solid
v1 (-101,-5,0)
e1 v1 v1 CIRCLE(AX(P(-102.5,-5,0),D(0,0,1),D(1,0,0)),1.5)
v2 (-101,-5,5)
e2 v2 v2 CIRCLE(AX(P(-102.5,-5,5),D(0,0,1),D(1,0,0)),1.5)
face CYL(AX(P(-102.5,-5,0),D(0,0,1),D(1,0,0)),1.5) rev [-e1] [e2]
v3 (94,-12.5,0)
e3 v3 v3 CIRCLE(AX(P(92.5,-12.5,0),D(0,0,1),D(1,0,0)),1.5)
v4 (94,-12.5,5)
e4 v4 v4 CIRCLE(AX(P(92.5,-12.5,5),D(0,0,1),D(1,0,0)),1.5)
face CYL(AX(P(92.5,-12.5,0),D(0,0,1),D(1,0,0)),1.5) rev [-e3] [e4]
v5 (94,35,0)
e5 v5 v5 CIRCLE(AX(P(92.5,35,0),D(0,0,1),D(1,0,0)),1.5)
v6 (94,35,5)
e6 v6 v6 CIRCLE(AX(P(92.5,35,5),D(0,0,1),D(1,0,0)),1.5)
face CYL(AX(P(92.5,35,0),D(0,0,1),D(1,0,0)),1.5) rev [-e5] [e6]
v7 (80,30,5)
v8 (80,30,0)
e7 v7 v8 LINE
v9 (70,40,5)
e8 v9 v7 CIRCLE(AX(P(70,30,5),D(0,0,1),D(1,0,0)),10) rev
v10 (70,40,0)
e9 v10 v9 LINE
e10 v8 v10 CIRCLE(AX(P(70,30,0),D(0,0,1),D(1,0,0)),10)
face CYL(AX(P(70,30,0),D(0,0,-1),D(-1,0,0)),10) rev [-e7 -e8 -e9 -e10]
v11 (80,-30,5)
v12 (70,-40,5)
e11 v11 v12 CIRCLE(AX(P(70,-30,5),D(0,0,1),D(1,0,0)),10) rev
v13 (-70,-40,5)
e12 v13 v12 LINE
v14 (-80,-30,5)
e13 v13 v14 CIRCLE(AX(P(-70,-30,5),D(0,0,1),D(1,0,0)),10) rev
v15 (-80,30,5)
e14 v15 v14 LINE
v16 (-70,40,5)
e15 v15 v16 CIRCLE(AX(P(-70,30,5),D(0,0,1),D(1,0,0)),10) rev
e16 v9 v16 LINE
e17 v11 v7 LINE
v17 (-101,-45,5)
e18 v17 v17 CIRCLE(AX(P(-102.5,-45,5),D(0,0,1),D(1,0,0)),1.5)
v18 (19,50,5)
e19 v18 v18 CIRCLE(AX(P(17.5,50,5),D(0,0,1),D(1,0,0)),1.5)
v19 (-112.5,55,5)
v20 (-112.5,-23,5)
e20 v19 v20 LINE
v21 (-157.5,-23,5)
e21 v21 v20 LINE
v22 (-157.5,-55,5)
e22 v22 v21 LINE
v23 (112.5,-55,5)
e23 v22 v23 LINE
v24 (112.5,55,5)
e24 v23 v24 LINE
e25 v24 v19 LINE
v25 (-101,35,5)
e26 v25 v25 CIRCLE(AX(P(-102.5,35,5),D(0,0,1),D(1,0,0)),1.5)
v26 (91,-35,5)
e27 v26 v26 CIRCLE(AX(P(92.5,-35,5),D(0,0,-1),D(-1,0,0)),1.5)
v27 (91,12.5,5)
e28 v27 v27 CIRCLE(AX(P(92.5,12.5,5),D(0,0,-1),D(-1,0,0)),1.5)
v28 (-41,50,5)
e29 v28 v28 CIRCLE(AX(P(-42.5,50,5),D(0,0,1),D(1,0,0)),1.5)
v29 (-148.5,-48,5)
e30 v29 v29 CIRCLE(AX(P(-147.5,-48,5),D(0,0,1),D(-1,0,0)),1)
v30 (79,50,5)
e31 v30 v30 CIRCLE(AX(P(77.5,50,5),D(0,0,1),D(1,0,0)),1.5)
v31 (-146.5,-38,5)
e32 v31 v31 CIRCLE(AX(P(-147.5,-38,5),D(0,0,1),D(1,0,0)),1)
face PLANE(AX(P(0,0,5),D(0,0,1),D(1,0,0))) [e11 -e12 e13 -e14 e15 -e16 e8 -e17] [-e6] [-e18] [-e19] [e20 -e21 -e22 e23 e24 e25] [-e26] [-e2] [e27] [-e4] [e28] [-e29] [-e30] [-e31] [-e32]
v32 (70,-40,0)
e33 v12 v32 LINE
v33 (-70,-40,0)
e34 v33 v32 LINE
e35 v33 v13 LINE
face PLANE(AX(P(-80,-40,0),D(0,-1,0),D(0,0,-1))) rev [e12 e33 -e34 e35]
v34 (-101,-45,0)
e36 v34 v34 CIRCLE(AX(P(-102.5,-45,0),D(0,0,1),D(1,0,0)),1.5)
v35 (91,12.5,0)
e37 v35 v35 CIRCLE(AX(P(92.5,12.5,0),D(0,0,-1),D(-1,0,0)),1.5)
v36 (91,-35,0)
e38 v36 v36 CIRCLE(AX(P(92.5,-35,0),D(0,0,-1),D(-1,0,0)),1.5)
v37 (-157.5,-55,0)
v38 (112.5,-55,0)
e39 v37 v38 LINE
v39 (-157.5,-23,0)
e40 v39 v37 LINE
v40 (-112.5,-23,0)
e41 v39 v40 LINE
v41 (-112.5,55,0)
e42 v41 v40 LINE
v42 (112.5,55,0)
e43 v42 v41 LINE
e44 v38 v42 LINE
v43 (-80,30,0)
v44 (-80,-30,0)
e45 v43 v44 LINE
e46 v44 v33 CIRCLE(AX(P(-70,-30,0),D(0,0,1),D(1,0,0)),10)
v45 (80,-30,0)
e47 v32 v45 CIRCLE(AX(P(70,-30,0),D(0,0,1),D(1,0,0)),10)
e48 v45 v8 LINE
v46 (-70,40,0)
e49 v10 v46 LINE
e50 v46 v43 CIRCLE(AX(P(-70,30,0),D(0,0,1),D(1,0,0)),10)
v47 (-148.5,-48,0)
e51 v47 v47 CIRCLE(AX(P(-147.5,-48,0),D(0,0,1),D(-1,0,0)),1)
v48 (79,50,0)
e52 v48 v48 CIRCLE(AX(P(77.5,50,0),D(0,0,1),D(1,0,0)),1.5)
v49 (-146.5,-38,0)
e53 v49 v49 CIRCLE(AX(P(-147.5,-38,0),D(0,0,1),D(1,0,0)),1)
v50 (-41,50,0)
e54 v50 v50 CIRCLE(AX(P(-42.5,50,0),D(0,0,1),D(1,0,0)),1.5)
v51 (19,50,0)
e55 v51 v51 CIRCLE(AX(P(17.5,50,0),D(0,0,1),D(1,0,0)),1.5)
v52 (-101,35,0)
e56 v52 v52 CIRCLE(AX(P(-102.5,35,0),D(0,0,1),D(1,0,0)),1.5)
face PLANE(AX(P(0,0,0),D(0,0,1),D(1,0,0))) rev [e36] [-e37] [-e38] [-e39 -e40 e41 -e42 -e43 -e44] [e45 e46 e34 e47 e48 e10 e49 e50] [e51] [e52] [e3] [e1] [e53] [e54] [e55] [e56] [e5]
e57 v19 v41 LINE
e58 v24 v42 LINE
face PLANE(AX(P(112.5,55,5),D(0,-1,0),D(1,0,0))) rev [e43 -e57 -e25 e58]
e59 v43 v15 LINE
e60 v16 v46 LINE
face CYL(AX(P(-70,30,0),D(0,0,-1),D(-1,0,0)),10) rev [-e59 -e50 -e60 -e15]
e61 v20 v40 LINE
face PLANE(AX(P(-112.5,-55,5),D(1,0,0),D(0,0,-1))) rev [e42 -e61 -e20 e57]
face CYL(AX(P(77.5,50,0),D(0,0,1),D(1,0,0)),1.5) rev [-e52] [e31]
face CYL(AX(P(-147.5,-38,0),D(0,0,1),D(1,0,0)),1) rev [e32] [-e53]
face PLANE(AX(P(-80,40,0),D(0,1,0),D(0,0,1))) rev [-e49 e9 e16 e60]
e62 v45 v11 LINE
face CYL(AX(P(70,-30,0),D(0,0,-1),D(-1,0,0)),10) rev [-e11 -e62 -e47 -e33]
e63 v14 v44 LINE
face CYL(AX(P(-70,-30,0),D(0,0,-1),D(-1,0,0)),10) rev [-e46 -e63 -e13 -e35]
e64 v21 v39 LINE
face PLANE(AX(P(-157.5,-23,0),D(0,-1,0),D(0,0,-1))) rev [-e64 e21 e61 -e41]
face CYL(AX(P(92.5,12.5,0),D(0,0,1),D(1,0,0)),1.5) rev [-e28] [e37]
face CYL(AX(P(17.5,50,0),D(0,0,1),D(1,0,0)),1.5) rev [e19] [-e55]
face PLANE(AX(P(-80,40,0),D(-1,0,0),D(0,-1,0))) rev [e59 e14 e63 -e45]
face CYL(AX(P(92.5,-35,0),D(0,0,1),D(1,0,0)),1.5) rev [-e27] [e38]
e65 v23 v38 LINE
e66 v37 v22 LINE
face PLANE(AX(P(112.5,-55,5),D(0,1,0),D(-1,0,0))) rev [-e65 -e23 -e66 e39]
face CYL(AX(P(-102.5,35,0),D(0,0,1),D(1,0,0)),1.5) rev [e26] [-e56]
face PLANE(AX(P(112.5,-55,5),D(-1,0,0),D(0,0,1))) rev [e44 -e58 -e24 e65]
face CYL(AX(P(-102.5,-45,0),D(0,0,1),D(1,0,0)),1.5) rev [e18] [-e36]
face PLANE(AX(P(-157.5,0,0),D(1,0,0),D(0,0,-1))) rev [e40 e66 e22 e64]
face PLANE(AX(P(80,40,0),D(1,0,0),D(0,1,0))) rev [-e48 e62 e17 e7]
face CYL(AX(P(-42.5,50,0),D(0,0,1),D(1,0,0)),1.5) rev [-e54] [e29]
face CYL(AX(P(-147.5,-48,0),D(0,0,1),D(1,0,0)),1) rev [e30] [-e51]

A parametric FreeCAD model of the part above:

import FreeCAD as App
import Part
import Sketcher
from FreeCAD import Vector


def edges_at(feature, points):
    """Names of the edges that pass closest to the given points."""
    edges = feature.Shape.Edges
    near = lambda p: min(range(len(edges)), key=lambda i: edges[i].distToShape(Part.Vertex(*p))[0])
    return sorted({f"Edge{near(p) + 1}" for p in points})


def add_polygon(sketch, points):
    """Adds a closed chain of lines whose ends are joined by coincident constraints."""
    first, n = sketch.GeometryCount, len(points)
    for a, b in zip(points, points[1:] + points[:1]):
        sketch.addGeometry(Part.LineSegment(App.Vector(*a, 0), App.Vector(*b, 0)), False)
    for i in range(n):
        sketch.addConstraint(Sketcher.Constraint("Coincident", first + i, 2, first + (i + 1) % n, 1))

doc = App.newDocument("Part")
body = doc.addObject("PartDesign::Body", "Body")

sketch1 = body.newObject("Sketcher::SketchObject", "Sketch")
sketch1.AttachmentSupport = (doc.getObject("XY_Plane"), [""])
sketch1.MapMode = "FlatFace"
add_polygon(sketch1, [(-112, 55), (-112, -55), (112, -55), (112, 55)])
sketch1.addConstraint(Sketcher.Constraint("Vertical", 0))
sketch1.addConstraint(Sketcher.Constraint("Horizontal", 1))
sketch1.addConstraint(Sketcher.Constraint("Vertical", 2))
sketch1.addConstraint(Sketcher.Constraint("Horizontal", 3))
sketch1.addConstraint(Sketcher.Constraint("Symmetric", 0, 2, 2, 2, -1, 1))
sketch1.addConstraint(Sketcher.Constraint("DistanceX", 1, 1, 1, 2, 225.0))
sketch1.addConstraint(Sketcher.Constraint("DistanceY", 0, 2, 0, 1, 110.0))
pad1 = body.newObject("PartDesign::Pad", "Pad")
pad1.Profile = sketch1
pad1.Length = 5

sketch2 = body.newObject("Sketcher::SketchObject", "Sketch001")
sketch2.AttachmentSupport = (doc.getObject("YZ_Plane"), [""])
sketch2.MapMode = "FlatFace"
sketch2.AttachmentOffset = App.Placement(Vector(0, 0, -112.5), App.Rotation())
add_polygon(sketch2, [(-23, 0), (-55, 0), (-55, 5), (-23, 5)])
sketch2.addConstraint(Sketcher.Constraint("Horizontal", 0))
sketch2.addConstraint(Sketcher.Constraint("Vertical", 1))
sketch2.addConstraint(Sketcher.Constraint("Horizontal", 2))
sketch2.addConstraint(Sketcher.Constraint("Vertical", 3))
sketch2.addConstraint(Sketcher.Constraint("PointOnObject", 0, 2, -1))
sketch2.addConstraint(Sketcher.Constraint("DistanceX", 0, 2, 0, 1, 32.0))
sketch2.addConstraint(Sketcher.Constraint("DistanceY", 1, 1, 1, 2, 5.0))
sketch2.addConstraint(Sketcher.Constraint("DistanceX", 0, 2, -1, 1, 55.0))
pad2 = body.newObject("PartDesign::Pad", "Pad001")
pad2.Profile = sketch2
pad2.Length = 45
pad2.Reversed = True

sketch3 = body.newObject("Sketcher::SketchObject", "Sketch002")
sketch3.AttachmentSupport = (doc.getObject("XY_Plane"), [""])
sketch3.MapMode = "FlatFace"
sketch3.AttachmentOffset = App.Placement(Vector(0, 0, 5), App.Rotation())
sketch3.addGeometry(Part.Circle(Vector(92.5, 35, 0), Vector(0, 0, 1), 1.5), False)
sketch3.addGeometry(Part.Circle(Vector(92.5, 12.5, 0), Vector(0, 0, 1), 1.5), False)
sketch3.addGeometry(Part.Circle(Vector(92.5, -12.5, 0), Vector(0, 0, 1), 1.5), False)
sketch3.addGeometry(Part.Circle(Vector(92.5, -35, 0), Vector(0, 0, 1), 1.5), False)
sketch3.addConstraint(Sketcher.Constraint("Equal", 0, 1))
sketch3.addConstraint(Sketcher.Constraint("Equal", 1, 2))
sketch3.addConstraint(Sketcher.Constraint("Equal", 2, 3))
sketch3.addConstraint(Sketcher.Constraint("Symmetric", 1, 3, 2, 3, -1))
sketch3.addConstraint(Sketcher.Constraint("Symmetric", 0, 3, 3, 3, -1))
sketch3.addConstraint(Sketcher.Constraint("Vertical", 0, 3, 1, 3))
sketch3.addConstraint(Sketcher.Constraint("Diameter", 0, 3.0))
sketch3.addConstraint(Sketcher.Constraint("DistanceY", -1, 1, 0, 3, 35.0))
sketch3.addConstraint(Sketcher.Constraint("DistanceY", 2, 3, 1, 3, 25.0))
sketch3.addConstraint(Sketcher.Constraint("DistanceX", -1, 1, 0, 3, 92.5))
pocket1 = body.newObject("PartDesign::Pocket", "Pocket")
pocket1.Profile = sketch3
pocket1.Type = "ThroughAll"

sketch4 = body.newObject("Sketcher::SketchObject", "Sketch003")
sketch4.AttachmentSupport = (doc.getObject("XY_Plane"), [""])
sketch4.MapMode = "FlatFace"
sketch4.AttachmentOffset = App.Placement(Vector(0, 0, 5), App.Rotation())
sketch4.addGeometry(Part.Circle(Vector(-42.5, 50, 0), Vector(0, 0, 1), 1.5), False)
sketch4.addGeometry(Part.Circle(Vector(-102.5, 35, 0), Vector(0, 0, 1), 1.5), False)
sketch4.addGeometry(Part.Circle(Vector(17.5, 50, 0), Vector(0, 0, 1), 1.5), False)
sketch4.addGeometry(Part.Circle(Vector(77.5, 50, 0), Vector(0, 0, 1), 1.5), False)
sketch4.addGeometry(Part.Circle(Vector(-102.5, -5, 0), Vector(0, 0, 1), 1.5), False)
sketch4.addGeometry(Part.Circle(Vector(-102.5, -45, 0), Vector(0, 0, 1), 1.5), False)
sketch4.addConstraint(Sketcher.Constraint("Equal", 0, 1))
sketch4.addConstraint(Sketcher.Constraint("Equal", 1, 2))
sketch4.addConstraint(Sketcher.Constraint("Equal", 2, 3))
sketch4.addConstraint(Sketcher.Constraint("Equal", 3, 4))
sketch4.addConstraint(Sketcher.Constraint("Equal", 4, 5))
sketch4.addConstraint(Sketcher.Constraint("Horizontal", 0, 3, 2, 3))
sketch4.addConstraint(Sketcher.Constraint("Horizontal", 2, 3, 3, 3))
sketch4.addConstraint(Sketcher.Constraint("Vertical", 1, 3, 4, 3))
sketch4.addConstraint(Sketcher.Constraint("Vertical", 4, 3, 5, 3))
sketch4.addConstraint(Sketcher.Constraint("Diameter", 0, 3.0))
sketch4.addConstraint(Sketcher.Constraint("DistanceY", -1, 1, 0, 3, 50.0))
sketch4.addConstraint(Sketcher.Constraint("DistanceY", -1, 1, 1, 3, 35.0))
sketch4.addConstraint(Sketcher.Constraint("DistanceY", 4, 3, -1, 1, 5.0))
sketch4.addConstraint(Sketcher.Constraint("DistanceY", 5, 3, -1, 1, 45.0))
sketch4.addConstraint(Sketcher.Constraint("DistanceX", 1, 3, 0, 3, 60.0))
sketch4.addConstraint(Sketcher.Constraint("DistanceX", 0, 3, 2, 3, 60.0))
sketch4.addConstraint(Sketcher.Constraint("DistanceX", 2, 3, 3, 3, 60.0))
sketch4.addConstraint(Sketcher.Constraint("DistanceX", 0, 3, -1, 1, 42.5))
pocket2 = body.newObject("PartDesign::Pocket", "Pocket001")
pocket2.Profile = sketch4
pocket2.Type = "ThroughAll"

sketch5 = body.newObject("Sketcher::SketchObject", "Sketch004")
sketch5.AttachmentSupport = (doc.getObject("XY_Plane"), [""])
sketch5.MapMode = "FlatFace"
sketch5.AttachmentOffset = App.Placement(Vector(0, 0, 5), App.Rotation())
sketch5.addGeometry(Part.Circle(Vector(-147.5, -38, 0), Vector(0, 0, 1), 1), False)
sketch5.addGeometry(Part.Circle(Vector(-147.5, -48, 0), Vector(0, 0, 1), 1), False)
sketch5.addConstraint(Sketcher.Constraint("Equal", 0, 1))
sketch5.addConstraint(Sketcher.Constraint("Vertical", 0, 3, 1, 3))
sketch5.addConstraint(Sketcher.Constraint("Diameter", 0, 2.0))
sketch5.addConstraint(Sketcher.Constraint("DistanceY", 0, 3, -1, 1, 38.0))
sketch5.addConstraint(Sketcher.Constraint("DistanceY", 1, 3, -1, 1, 48.0))
sketch5.addConstraint(Sketcher.Constraint("DistanceX", 0, 3, -1, 1, 147.5))
pocket3 = body.newObject("PartDesign::Pocket", "Pocket002")
pocket3.Profile = sketch5
pocket3.Type = "ThroughAll"

sketch6 = body.newObject("Sketcher::SketchObject", "Sketch005")
sketch6.AttachmentSupport = (doc.getObject("XY_Plane"), [""])
sketch6.MapMode = "FlatFace"
sketch6.AttachmentOffset = App.Placement(Vector(0, 0, 5), App.Rotation())
add_polygon(sketch6, [(-80, 40), (-80, -40), (80, -40), (80, 40)])
sketch6.addConstraint(Sketcher.Constraint("Vertical", 0))
sketch6.addConstraint(Sketcher.Constraint("Horizontal", 1))
sketch6.addConstraint(Sketcher.Constraint("Vertical", 2))
sketch6.addConstraint(Sketcher.Constraint("Horizontal", 3))
sketch6.addConstraint(Sketcher.Constraint("Symmetric", 0, 2, 2, 2, -1, 1))
sketch6.addConstraint(Sketcher.Constraint("DistanceX", 1, 1, 1, 2, 160.0))
sketch6.addConstraint(Sketcher.Constraint("DistanceY", 0, 2, 0, 1, 80.0))
pocket4 = body.newObject("PartDesign::Pocket", "Pocket003")
pocket4.Profile = sketch6
pocket4.Type = "ThroughAll"
doc.recompute()

fillet = body.newObject("PartDesign::Fillet", "Fillet")
fillet.Base = (pocket4, edges_at(pocket4, [
    (-80, -40, 2.5),
    (-80, 40, 2.5),
    (80, 40, 2.5),
    (80, -40, 2.5),
]))
fillet.Radius = 10

doc.recompute()
